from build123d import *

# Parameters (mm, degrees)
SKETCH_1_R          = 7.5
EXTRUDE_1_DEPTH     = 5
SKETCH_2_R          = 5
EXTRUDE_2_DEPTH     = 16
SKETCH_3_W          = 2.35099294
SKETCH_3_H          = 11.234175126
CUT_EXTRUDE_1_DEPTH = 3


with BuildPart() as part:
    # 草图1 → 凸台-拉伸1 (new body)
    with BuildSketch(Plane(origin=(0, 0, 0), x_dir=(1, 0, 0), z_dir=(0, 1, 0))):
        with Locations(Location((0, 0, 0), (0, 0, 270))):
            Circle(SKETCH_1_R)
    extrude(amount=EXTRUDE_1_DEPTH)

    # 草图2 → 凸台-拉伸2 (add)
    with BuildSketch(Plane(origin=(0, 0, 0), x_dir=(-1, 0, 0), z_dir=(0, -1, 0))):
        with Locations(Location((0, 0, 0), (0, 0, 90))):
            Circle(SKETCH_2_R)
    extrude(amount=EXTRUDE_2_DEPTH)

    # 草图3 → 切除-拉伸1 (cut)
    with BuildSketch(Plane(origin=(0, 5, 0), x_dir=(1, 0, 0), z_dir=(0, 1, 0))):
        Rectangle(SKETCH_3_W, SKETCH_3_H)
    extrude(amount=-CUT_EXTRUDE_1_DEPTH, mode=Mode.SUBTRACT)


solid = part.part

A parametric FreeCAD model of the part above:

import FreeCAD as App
import Part
import Sketcher

V = App.Vector
Q = App.Units.Quantity

doc = App.newDocument("Part")
params = doc.addObject("Spreadsheet::Sheet", "Params")
for row, (alias, value) in enumerate([
    ("sketch1_diameter", "15 mm"),
    ("pad1_length", "5 mm"),
    ("sketch2_diameter", "10 mm"),
    ("pad2_length", "16 mm"),
    ("pocket1_length", "3 mm"),
], start=1):
    params.set(f"A{row}", alias)
    params.set(f"B{row}", "=" + value)
    params.setAlias(f"B{row}", alias)

body = doc.addObject("PartDesign::Body", "Body")

sketch1 = body.newObject("Sketcher::SketchObject", "Sketch")
sketch1.AttachmentSupport = (doc.getObject("XZ_Plane"), [""])
sketch1.MapMode = "FlatFace"
sketch1.addGeometry(Part.Circle(V(0, 0, 0), V(0, 0, 1), 8), False)
sketch1.addConstraint(Sketcher.Constraint("Coincident", 0, 3, -1, 1))
sketch1.addConstraint(Sketcher.Constraint("Diameter", 0, Q("15 mm")))
sketch1.setExpression("Constraints[1]", "Params.sketch1_diameter")
pad1 = body.newObject("PartDesign::Pad", "Pad")
pad1.Profile = sketch1
pad1.setExpression("Length", "Params.pad1_length")
pad1.Reversed = True

sketch2 = body.newObject("Sketcher::SketchObject", "Sketch001")
sketch2.AttachmentSupport = (doc.getObject("XZ_Plane"), [""])
sketch2.MapMode = "FlatFace"
sketch2.addGeometry(Part.Circle(V(0, 0, 0), V(0, 0, 1), 5), False)
sketch2.addConstraint(Sketcher.Constraint("Coincident", 0, 3, -1, 1))
sketch2.addConstraint(Sketcher.Constraint("Diameter", 0, Q("10 mm")))
sketch2.setExpression("Constraints[1]", "Params.sketch2_diameter")
pad2 = body.newObject("PartDesign::Pad", "Pad001")
pad2.Profile = sketch2
pad2.setExpression("Length", "Params.pad2_length")

sketch3 = body.newObject("Sketcher::SketchObject", "Sketch002")
sketch3.AttachmentSupport = (doc.getObject("XZ_Plane"), [""])
sketch3.MapMode = "FlatFace"
sketch3.AttachmentOffset = App.Placement(V(0, 0, -5), App.Rotation())
sketch3.addGeometry(Part.LineSegment(V(-1.2, -5.6, 0), V(-1.2, 5.6, 0)), False)
sketch3.addGeometry(Part.LineSegment(V(-1.2, 5.6, 0), V(1.2, 5.6, 0)), False)
sketch3.addGeometry(Part.LineSegment(V(1.2, 5.6, 0), V(1.2, -5.6, 0)), False)
sketch3.addGeometry(Part.LineSegment(V(1.2, -5.6, 0), V(-1.2, -5.6, 0)), False)
sketch3.addConstraint(Sketcher.Constraint("Coincident", 0, 2, 1, 1))
sketch3.addConstraint(Sketcher.Constraint("Coincident", 1, 2, 2, 1))
sketch3.addConstraint(Sketcher.Constraint("Coincident", 2, 2, 3, 1))
sketch3.addConstraint(Sketcher.Constraint("Coincident", 3, 2, 0, 1))
sketch3.addConstraint(Sketcher.Constraint("Vertical", 0))
sketch3.addConstraint(Sketcher.Constraint("Horizontal", 1))
sketch3.addConstraint(Sketcher.Constraint("Vertical", 2))
sketch3.addConstraint(Sketcher.Constraint("Horizontal", 3))
sketch3.addConstraint(Sketcher.Constraint("Symmetric", 0, 2, 2, 2, -1, 1))
sketch3.addConstraint(Sketcher.Constraint("DistanceX", 1, 1, 1, 2, Q("2.350993 mm")))
sketch3.addConstraint(Sketcher.Constraint("DistanceY", 0, 1, 0, 2, Q("11.234175 mm")))
pocket1 = body.newObject("PartDesign::Pocket", "Pocket")
pocket1.Profile = sketch3
pocket1.setExpression("Length", "Params.pocket1_length")
pocket1.Reversed = True

doc.recompute()
